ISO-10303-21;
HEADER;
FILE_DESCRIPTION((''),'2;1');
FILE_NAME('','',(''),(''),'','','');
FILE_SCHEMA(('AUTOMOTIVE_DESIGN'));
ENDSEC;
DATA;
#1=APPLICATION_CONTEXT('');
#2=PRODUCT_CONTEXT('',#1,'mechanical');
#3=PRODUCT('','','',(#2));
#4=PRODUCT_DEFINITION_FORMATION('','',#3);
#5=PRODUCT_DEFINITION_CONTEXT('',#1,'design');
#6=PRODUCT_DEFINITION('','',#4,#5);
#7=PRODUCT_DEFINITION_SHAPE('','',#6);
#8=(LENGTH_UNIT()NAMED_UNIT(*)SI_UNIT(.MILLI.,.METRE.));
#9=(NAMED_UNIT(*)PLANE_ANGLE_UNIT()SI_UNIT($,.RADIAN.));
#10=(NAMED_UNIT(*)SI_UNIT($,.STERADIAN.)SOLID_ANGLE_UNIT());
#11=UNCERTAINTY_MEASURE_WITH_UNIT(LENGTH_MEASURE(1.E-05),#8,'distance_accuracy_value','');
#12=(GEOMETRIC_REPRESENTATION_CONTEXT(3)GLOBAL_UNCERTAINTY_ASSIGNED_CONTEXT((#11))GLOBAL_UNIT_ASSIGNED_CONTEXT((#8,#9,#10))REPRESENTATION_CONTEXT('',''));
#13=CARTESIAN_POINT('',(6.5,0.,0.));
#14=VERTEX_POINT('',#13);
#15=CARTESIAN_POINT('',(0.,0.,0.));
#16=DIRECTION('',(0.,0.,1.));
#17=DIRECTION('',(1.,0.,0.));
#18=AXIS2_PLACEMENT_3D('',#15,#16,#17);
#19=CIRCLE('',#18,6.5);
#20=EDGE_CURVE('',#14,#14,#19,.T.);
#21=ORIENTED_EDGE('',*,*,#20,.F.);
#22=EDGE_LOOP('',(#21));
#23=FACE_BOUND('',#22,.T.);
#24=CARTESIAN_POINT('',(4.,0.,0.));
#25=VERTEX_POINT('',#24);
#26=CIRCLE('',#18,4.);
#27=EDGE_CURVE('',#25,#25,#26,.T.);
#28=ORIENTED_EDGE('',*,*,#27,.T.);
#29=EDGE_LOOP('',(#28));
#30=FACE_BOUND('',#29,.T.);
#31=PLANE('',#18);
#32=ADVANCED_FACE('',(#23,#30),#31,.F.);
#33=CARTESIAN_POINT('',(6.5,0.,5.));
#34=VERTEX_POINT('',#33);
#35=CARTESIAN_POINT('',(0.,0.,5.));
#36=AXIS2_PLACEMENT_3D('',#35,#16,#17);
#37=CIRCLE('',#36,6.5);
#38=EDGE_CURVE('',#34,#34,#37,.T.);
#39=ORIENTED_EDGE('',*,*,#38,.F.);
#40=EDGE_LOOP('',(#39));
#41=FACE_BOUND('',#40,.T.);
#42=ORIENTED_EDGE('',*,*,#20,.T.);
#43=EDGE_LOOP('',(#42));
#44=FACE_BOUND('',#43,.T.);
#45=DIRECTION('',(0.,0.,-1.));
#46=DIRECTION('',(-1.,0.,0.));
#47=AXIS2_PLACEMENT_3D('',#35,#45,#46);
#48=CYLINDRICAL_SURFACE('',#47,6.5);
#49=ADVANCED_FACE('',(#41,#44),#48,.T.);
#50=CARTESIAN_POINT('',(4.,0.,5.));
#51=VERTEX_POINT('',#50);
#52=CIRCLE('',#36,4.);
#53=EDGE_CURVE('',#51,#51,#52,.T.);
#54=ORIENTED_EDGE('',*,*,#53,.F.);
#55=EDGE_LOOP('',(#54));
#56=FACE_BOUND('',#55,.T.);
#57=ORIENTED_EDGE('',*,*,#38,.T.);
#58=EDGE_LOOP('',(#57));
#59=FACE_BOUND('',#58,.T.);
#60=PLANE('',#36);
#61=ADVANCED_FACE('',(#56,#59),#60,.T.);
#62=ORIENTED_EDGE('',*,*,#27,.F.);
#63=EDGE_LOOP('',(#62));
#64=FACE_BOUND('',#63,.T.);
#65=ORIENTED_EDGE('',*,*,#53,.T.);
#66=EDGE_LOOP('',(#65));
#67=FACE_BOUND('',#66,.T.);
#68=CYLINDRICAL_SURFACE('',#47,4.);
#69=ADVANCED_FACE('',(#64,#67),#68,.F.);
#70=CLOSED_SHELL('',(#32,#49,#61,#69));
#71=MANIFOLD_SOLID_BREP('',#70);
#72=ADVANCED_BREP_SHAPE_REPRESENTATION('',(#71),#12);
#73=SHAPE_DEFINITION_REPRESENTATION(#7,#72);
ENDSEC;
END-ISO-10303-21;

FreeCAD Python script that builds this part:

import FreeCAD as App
import Part
import Sketcher
from FreeCAD import Vector
Q = App.Units.Quantity

doc = App.newDocument("Part")
body = doc.addObject("PartDesign::Body", "Body")

sketch1 = doc.addObject("Sketcher::SketchObject", "Sketch")
body.addObject(sketch1)
sketch1.AttachmentSupport = (doc.XY_Plane, [""])
sketch1.MapMode = "FlatFace"
sketch1.addGeometry([
    Part.Circle(Vector(0, 0, 0), Vector(0, 0, 1), 6.5),
    Part.Circle(Vector(0, 0, 0), Vector(0, 0, 1), 4),
], False)
sketch1.addConstraint([
    Sketcher.Constraint("Coincident", 0, 3, -1, 1),
    Sketcher.Constraint("Coincident", 1, 3, -1, 1),
    Sketcher.Constraint("Diameter", 0, Q("13 mm")),
    Sketcher.Constraint("Diameter", 1, Q("8 mm")),
])
pad1 = doc.addObject("PartDesign::Pad", "Pad")
body.addObject(pad1)
pad1.Profile = sketch1
pad1.Length = 5

doc.recompute()
